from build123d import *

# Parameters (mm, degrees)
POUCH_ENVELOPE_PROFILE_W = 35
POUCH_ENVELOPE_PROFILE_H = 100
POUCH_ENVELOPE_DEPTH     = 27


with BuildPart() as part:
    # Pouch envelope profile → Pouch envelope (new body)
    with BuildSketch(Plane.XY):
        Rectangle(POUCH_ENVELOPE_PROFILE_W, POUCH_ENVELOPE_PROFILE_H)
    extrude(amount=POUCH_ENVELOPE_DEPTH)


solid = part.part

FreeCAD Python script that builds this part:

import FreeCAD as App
import Part
import Sketcher

V = App.Vector

doc = App.newDocument("Part")
body = doc.addObject("PartDesign::Body", "Body")

# Sketch on XY plane
sketch1 = body.newObject("Sketcher::SketchObject", "Sketch")
sketch1.AttachmentSupport = (doc.getObject("XY_Plane"), [""])
sketch1.MapMode = "FlatFace"
sketch1.addGeometry([
    Part.LineSegment(V(-18, 50, 0), V(-18, -50, 0)),
    Part.LineSegment(V(-18, -50, 0), V(18, -50, 0)),
    Part.LineSegment(V(18, -50, 0), V(18, 50, 0)),
    Part.LineSegment(V(18, 50, 0), V(-18, 50, 0)),
], False)
sketch1.addConstraint([
    Sketcher.Constraint("Coincident", 0, 2, 1, 1),
    Sketcher.Constraint("Coincident", 1, 2, 2, 1),
    Sketcher.Constraint("Coincident", 2, 2, 3, 1),
    Sketcher.Constraint("Coincident", 3, 2, 0, 1),
    Sketcher.Constraint("Vertical", 0),
    Sketcher.Constraint("Horizontal", 1),
    Sketcher.Constraint("Vertical", 2),
    Sketcher.Constraint("Horizontal", 3),
    Sketcher.Constraint("Symmetric", 0, 2, 2, 2, -1, 1),
    Sketcher.Constraint("DistanceX", 1, 1, 1, 2, 35.0),
    Sketcher.Constraint("DistanceY", 0, 2, 0, 1, 100.0),
])
pad1 = body.newObject("PartDesign::Pad", "Pad")
pad1.Profile = sketch1
pad1.Length = 27

doc.recompute()
